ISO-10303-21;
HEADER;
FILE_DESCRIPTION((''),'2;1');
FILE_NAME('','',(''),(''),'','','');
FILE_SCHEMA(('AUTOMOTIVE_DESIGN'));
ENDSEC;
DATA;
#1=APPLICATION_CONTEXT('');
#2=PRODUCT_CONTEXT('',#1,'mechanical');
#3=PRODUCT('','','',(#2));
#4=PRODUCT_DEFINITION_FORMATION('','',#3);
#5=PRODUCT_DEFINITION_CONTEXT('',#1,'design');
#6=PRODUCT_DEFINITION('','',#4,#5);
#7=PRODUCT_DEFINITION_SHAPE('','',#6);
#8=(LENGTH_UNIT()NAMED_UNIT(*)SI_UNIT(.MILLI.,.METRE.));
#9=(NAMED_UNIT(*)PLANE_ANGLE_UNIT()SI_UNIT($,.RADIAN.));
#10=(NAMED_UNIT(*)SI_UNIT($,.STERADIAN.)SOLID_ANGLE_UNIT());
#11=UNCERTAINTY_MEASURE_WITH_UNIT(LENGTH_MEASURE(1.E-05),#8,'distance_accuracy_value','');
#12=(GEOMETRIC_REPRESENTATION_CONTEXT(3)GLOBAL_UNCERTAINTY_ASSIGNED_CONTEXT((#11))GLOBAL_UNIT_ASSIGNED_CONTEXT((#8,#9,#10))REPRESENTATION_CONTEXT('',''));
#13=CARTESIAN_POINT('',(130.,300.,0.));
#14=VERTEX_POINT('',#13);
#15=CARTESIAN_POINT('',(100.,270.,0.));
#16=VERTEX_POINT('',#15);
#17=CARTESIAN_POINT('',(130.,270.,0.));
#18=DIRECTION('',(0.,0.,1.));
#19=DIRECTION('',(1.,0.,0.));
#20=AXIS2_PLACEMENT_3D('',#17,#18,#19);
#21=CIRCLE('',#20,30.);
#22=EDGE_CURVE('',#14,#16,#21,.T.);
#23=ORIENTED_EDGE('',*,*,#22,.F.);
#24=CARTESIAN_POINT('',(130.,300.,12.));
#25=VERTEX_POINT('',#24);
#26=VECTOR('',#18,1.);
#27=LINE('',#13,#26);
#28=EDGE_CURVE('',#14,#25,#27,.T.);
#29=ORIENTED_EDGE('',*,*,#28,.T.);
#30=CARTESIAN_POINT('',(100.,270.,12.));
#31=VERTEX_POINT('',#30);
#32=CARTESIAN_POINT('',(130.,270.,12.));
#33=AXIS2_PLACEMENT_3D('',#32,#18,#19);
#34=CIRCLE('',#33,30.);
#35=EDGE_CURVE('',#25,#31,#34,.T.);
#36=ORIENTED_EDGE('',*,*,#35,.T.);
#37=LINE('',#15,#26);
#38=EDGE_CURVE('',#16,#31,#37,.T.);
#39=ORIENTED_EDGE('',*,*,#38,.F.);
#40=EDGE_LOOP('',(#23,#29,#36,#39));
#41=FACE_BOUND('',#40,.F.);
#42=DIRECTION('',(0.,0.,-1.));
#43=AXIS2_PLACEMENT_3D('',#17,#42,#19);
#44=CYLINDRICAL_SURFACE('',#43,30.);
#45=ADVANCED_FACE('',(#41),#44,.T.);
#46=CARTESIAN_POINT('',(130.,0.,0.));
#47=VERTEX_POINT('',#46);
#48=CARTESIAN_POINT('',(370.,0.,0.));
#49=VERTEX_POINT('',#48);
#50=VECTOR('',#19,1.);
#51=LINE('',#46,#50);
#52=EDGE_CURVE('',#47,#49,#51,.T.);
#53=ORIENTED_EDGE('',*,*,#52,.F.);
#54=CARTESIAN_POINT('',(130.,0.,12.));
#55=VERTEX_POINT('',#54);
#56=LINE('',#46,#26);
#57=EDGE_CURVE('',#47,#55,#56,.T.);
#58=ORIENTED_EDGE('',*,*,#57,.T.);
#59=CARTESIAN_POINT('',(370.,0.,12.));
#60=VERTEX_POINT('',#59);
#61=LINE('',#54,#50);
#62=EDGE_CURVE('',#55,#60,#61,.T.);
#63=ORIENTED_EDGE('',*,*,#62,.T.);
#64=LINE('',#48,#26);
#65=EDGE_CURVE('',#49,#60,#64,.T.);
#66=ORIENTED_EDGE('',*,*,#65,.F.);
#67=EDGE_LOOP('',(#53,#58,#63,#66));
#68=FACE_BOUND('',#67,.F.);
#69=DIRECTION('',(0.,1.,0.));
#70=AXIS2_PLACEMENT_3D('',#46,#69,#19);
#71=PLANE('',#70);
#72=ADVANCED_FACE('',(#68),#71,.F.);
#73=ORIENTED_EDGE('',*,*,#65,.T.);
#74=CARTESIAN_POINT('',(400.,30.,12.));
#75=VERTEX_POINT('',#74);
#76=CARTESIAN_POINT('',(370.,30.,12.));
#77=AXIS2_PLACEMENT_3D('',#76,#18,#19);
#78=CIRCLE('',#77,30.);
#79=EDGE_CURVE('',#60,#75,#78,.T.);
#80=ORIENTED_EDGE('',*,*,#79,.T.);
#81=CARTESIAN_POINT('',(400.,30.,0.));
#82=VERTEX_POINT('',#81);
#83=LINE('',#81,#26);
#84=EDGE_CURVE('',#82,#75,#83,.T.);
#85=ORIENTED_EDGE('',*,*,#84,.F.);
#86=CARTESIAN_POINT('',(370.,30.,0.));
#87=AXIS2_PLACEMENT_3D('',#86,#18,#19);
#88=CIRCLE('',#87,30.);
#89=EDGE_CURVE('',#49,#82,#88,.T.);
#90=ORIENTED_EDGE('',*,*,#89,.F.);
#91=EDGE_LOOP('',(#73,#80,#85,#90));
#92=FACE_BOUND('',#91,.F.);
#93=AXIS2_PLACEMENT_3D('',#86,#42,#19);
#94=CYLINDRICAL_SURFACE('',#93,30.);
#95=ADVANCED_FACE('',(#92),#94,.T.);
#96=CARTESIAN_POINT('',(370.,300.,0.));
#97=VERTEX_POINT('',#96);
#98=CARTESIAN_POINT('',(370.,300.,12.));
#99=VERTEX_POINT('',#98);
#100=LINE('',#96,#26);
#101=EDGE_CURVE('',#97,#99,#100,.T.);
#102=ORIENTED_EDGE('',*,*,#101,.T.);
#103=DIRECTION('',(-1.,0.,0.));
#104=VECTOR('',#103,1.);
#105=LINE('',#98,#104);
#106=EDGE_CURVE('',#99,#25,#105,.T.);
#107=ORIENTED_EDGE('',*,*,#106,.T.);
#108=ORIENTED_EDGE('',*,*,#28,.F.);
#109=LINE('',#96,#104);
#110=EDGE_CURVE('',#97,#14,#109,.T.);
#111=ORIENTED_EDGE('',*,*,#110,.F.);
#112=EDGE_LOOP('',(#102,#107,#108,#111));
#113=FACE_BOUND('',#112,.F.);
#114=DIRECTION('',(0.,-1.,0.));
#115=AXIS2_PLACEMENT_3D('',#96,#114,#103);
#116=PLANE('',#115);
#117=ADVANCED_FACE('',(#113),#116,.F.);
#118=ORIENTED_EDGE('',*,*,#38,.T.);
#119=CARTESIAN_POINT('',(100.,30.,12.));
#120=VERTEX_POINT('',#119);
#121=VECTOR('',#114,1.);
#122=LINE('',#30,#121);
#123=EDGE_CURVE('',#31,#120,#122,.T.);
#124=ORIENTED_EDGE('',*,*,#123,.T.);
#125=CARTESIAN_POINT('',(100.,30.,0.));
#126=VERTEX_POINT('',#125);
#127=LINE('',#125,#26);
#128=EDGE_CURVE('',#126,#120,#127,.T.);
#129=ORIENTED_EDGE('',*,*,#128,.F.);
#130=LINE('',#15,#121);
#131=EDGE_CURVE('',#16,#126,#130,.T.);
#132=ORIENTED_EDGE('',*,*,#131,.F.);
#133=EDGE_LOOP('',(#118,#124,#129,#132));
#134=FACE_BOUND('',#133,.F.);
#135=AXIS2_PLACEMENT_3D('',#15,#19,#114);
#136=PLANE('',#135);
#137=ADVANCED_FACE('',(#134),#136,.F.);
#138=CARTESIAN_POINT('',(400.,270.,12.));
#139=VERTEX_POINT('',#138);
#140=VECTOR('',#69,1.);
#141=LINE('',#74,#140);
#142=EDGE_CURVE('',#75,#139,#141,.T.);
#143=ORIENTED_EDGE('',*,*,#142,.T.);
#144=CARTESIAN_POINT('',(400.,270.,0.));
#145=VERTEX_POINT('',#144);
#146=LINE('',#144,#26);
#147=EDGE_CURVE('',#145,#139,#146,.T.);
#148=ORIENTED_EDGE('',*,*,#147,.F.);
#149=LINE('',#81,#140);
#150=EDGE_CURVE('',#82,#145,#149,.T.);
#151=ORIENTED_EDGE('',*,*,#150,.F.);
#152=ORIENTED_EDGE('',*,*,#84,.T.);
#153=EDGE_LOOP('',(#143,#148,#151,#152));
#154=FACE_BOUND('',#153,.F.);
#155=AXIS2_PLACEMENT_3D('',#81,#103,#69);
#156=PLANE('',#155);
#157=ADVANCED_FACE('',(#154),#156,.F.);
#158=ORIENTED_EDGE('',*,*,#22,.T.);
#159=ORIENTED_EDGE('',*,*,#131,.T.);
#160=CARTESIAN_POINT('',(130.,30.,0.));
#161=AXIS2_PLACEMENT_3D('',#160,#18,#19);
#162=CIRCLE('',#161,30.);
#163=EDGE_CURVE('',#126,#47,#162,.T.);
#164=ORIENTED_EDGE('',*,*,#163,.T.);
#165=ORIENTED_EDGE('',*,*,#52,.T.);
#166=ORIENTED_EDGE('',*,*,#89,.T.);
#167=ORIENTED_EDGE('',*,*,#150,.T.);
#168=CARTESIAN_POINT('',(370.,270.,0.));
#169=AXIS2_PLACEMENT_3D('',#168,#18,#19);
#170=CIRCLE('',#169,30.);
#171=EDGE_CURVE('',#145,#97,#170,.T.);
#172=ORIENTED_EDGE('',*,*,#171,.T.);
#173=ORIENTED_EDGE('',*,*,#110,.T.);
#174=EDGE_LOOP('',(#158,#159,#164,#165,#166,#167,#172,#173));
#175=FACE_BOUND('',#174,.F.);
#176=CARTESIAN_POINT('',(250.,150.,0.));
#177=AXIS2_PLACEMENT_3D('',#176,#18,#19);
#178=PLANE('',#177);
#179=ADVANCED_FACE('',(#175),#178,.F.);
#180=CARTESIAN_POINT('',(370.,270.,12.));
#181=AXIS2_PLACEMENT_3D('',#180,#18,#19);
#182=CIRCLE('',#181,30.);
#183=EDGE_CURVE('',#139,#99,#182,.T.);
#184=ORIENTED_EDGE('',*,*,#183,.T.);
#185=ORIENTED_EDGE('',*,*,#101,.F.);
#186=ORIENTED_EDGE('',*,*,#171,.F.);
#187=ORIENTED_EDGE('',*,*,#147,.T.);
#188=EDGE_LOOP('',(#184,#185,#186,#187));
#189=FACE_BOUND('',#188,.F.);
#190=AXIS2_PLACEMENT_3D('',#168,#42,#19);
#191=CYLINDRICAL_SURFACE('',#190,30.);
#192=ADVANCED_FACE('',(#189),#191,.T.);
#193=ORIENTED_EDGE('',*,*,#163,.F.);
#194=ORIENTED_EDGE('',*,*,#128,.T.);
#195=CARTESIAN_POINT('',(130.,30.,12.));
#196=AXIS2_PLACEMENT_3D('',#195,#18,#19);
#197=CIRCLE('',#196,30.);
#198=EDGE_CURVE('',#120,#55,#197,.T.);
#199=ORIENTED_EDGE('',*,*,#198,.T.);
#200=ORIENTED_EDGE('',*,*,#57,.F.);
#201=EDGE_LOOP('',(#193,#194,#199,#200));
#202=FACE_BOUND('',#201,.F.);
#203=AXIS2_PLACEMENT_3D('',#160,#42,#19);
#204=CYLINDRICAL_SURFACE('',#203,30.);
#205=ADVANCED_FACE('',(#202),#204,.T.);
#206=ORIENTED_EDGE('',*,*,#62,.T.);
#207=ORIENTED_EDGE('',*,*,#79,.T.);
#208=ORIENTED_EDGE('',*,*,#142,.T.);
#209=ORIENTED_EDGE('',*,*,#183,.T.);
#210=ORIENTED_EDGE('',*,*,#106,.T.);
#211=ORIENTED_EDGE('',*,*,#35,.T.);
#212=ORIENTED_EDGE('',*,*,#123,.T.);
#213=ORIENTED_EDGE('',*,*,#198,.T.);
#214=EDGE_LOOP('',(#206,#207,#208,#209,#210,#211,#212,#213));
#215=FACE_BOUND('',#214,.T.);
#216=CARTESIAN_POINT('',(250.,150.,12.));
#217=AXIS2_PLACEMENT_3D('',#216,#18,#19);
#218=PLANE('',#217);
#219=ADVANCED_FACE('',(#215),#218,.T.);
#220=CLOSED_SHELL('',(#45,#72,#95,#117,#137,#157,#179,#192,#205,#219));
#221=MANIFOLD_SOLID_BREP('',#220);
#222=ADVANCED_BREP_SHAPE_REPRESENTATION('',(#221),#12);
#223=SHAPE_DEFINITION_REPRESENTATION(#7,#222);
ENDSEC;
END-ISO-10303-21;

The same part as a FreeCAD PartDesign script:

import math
import FreeCAD as App
import Part
import Sketcher
from FreeCAD import Vector
Q = App.Units.Quantity

doc = App.newDocument("Part")
params = doc.addObject("Spreadsheet::Sheet", "Params")
for row, (alias, value) in enumerate([
    ("sketch1_radius", "30 mm"),
    ("pad1_length", "12 mm"),
], start=1):
    params.set(f"A{row}", alias)
    params.set(f"B{row}", "=" + value)
    params.setAlias(f"B{row}", alias)

body = doc.addObject("PartDesign::Body", "Body")

sketch1 = body.newObject("Sketcher::SketchObject", "Sketch")
sketch1.AttachmentSupport = (doc.getObject("XY_Plane"), [""])
sketch1.MapMode = "FlatFace"
sketch1.addGeometry([
    Part.ArcOfCircle(Part.Circle(Vector(130, 30, 0), Vector(0, 0, 1), 30), math.radians(180), math.radians(270)),
    Part.LineSegment(Vector(130, 0, 0), Vector(370, 0, 0)),
    Part.ArcOfCircle(Part.Circle(Vector(370, 30, 0), Vector(0, 0, 1), 30), math.radians(-90), math.radians(0)),
    Part.LineSegment(Vector(400, 30, 0), Vector(400, 270, 0)),
    Part.ArcOfCircle(Part.Circle(Vector(370, 270, 0), Vector(0, 0, 1), 30), math.radians(0), math.radians(90)),
    Part.LineSegment(Vector(370, 300, 0), Vector(130, 300, 0)),
    Part.ArcOfCircle(Part.Circle(Vector(130, 270, 0), Vector(0, 0, 1), 30), math.radians(90), math.radians(180)),
    Part.LineSegment(Vector(100, 270, 0), Vector(100, 30, 0)),
], False)
sketch1.addConstraint([
    Sketcher.Constraint("Tangent", 0, 2, 1, 1),
    Sketcher.Constraint("Tangent", 1, 2, 2, 1),
    Sketcher.Constraint("Tangent", 2, 2, 3, 1),
    Sketcher.Constraint("Tangent", 3, 2, 4, 1),
    Sketcher.Constraint("Tangent", 4, 2, 5, 1),
    Sketcher.Constraint("Tangent", 5, 2, 6, 1),
    Sketcher.Constraint("Tangent", 6, 2, 7, 1),
    Sketcher.Constraint("Tangent", 7, 2, 0, 1),
    Sketcher.Constraint("Horizontal", 1),
    Sketcher.Constraint("Vertical", 3),
    Sketcher.Constraint("Horizontal", 5),
    Sketcher.Constraint("Vertical", 7),
    Sketcher.Constraint("Equal", 0, 2),
    Sketcher.Constraint("Equal", 2, 4),
    Sketcher.Constraint("Equal", 4, 6),
    Sketcher.Constraint("PointOnObject", 0, 2, -1),
    Sketcher.Constraint("Equal", 5, 3),
    Sketcher.Constraint("DistanceX", -1, 1, 0, 3, Q("130 mm")),
    Sketcher.Constraint("DistanceX", -1, 1, 2, 2, Q("400 mm")),
    Sketcher.Constraint("Radius", 0, Q("30 mm")),
])
sketch1.setExpression("Constraints[19]", "Params.sketch1_radius")
pad1 = body.newObject("PartDesign::Pad", "Pad")
pad1.Profile = sketch1
pad1.setExpression("Length", "Params.pad1_length")

doc.recompute()
